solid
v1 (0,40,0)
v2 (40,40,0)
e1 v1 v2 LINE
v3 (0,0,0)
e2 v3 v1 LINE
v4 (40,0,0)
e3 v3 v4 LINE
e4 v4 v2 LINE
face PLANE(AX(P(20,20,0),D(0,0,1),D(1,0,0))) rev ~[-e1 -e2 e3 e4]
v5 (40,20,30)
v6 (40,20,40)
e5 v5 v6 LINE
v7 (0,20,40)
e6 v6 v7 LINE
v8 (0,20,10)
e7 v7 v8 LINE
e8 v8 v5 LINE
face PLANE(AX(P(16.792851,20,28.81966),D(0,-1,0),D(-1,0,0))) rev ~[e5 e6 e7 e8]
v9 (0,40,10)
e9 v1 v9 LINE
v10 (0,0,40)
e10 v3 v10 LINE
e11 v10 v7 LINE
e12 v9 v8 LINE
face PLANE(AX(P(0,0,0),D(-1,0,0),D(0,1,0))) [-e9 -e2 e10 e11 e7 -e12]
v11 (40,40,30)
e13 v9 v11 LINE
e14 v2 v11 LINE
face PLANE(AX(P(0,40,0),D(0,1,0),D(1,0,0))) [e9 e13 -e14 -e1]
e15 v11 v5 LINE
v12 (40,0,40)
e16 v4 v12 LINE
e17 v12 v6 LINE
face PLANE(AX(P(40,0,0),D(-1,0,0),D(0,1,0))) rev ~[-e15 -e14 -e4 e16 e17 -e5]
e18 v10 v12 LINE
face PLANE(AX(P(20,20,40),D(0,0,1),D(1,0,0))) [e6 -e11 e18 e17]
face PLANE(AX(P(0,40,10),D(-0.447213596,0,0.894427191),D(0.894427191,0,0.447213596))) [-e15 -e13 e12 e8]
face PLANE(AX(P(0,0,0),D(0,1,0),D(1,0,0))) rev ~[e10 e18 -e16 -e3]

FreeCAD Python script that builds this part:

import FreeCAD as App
import Part
import Sketcher
from FreeCAD import Vector
Q = App.Units.Quantity

doc = App.newDocument("Part")
params = doc.addObject("Spreadsheet::Sheet", "Params")
for row, (alias, value) in enumerate([
    ("sketch1_width", "40 mm"),
    ("pad1_length", "40 mm"),
    ("sketch2_width", "40 mm"),
    ("sketch2_height", "30 mm"),
    ("sketch2_height2", "10 mm"),
    ("pocket1_length", "20 mm"),
], start=1):
    params.set(f"A{row}", alias)
    params.set(f"B{row}", "=" + value)
    params.setAlias(f"B{row}", alias)

body = doc.addObject("PartDesign::Body", "Body")

sketch1 = body.newObject("Sketcher::SketchObject", "Sketch")
sketch1.AttachmentSupport = (doc.getObject("XY_Plane"), [""])
sketch1.MapMode = "FlatFace"
sketch1.addGeometry(Part.LineSegment(Vector(0, 40, 0), Vector(0, 0, 0)), False)
sketch1.addGeometry(Part.LineSegment(Vector(0, 0, 0), Vector(40, 0, 0)), False)
sketch1.addGeometry(Part.LineSegment(Vector(40, 0, 0), Vector(40, 40, 0)), False)
sketch1.addGeometry(Part.LineSegment(Vector(40, 40, 0), Vector(0, 40, 0)), False)
sketch1.addConstraint(Sketcher.Constraint("Coincident", 0, 2, 1, 1))
sketch1.addConstraint(Sketcher.Constraint("Coincident", 1, 2, 2, 1))
sketch1.addConstraint(Sketcher.Constraint("Coincident", 2, 2, 3, 1))
sketch1.addConstraint(Sketcher.Constraint("Coincident", 3, 2, 0, 1))
sketch1.addConstraint(Sketcher.Constraint("Vertical", 0))
sketch1.addConstraint(Sketcher.Constraint("Horizontal", 1))
sketch1.addConstraint(Sketcher.Constraint("Vertical", 2))
sketch1.addConstraint(Sketcher.Constraint("Horizontal", 3))
sketch1.addConstraint(Sketcher.Constraint("Coincident", 0, 2, -1, 1))
sketch1.addConstraint(Sketcher.Constraint("Equal", 3, 0))
sketch1.addConstraint(Sketcher.Constraint("DistanceX", 1, 1, 1, 2, Q("40 mm")))
sketch1.setExpression("Constraints[10]", "Params.sketch1_width")
pad1 = body.newObject("PartDesign::Pad", "Pad")
pad1.Profile = sketch1
pad1.setExpression("Length", "Params.pad1_length")

sketch2 = body.newObject("Sketcher::SketchObject", "Sketch001")
sketch2.AttachmentSupport = (doc.getObject("XZ_Plane"), [""])
sketch2.MapMode = "FlatFace"
sketch2.AttachmentOffset = App.Placement(Vector(0, 0, -40), App.Rotation())
sketch2.addGeometry(Part.LineSegment(Vector(40, 30, 0), Vector(0, 10, 0)), False)
sketch2.addGeometry(Part.LineSegment(Vector(0, 10, 0), Vector(0, 40, 0)), False)
sketch2.addGeometry(Part.LineSegment(Vector(0, 40, 0), Vector(40, 40, 0)), False)
sketch2.addGeometry(Part.LineSegment(Vector(40, 40, 0), Vector(40, 30, 0)), False)
sketch2.addConstraint(Sketcher.Constraint("Coincident", 0, 2, 1, 1))
sketch2.addConstraint(Sketcher.Constraint("Coincident", 1, 2, 2, 1))
sketch2.addConstraint(Sketcher.Constraint("Coincident", 2, 2, 3, 1))
sketch2.addConstraint(Sketcher.Constraint("Coincident", 3, 2, 0, 1))
sketch2.addConstraint(Sketcher.Constraint("Vertical", 1))
sketch2.addConstraint(Sketcher.Constraint("Horizontal", 2))
sketch2.addConstraint(Sketcher.Constraint("Vertical", 3))
sketch2.addConstraint(Sketcher.Constraint("PointOnObject", 0, 2, -2))
sketch2.addConstraint(Sketcher.Constraint("DistanceX", 2, 1, 2, 2, Q("40 mm")))
sketch2.addConstraint(Sketcher.Constraint("DistanceY", 1, 1, 1, 2, Q("30 mm")))
sketch2.addConstraint(Sketcher.Constraint("DistanceY", 3, 2, 3, 1, Q("10 mm")))
sketch2.addConstraint(Sketcher.Constraint("DistanceY", -1, 1, 0, 2, Q("10 mm")))
sketch2.setExpression("Constraints[8]", "Params.sketch2_width")
sketch2.setExpression("Constraints[9]", "Params.sketch2_height")
sketch2.setExpression("Constraints[10]", "Params.sketch2_height2")
pocket1 = body.newObject("PartDesign::Pocket", "Pocket")
pocket1.Profile = sketch2
pocket1.setExpression("Length", "Params.pocket1_length")
pocket1.Reversed = True

doc.recompute()
